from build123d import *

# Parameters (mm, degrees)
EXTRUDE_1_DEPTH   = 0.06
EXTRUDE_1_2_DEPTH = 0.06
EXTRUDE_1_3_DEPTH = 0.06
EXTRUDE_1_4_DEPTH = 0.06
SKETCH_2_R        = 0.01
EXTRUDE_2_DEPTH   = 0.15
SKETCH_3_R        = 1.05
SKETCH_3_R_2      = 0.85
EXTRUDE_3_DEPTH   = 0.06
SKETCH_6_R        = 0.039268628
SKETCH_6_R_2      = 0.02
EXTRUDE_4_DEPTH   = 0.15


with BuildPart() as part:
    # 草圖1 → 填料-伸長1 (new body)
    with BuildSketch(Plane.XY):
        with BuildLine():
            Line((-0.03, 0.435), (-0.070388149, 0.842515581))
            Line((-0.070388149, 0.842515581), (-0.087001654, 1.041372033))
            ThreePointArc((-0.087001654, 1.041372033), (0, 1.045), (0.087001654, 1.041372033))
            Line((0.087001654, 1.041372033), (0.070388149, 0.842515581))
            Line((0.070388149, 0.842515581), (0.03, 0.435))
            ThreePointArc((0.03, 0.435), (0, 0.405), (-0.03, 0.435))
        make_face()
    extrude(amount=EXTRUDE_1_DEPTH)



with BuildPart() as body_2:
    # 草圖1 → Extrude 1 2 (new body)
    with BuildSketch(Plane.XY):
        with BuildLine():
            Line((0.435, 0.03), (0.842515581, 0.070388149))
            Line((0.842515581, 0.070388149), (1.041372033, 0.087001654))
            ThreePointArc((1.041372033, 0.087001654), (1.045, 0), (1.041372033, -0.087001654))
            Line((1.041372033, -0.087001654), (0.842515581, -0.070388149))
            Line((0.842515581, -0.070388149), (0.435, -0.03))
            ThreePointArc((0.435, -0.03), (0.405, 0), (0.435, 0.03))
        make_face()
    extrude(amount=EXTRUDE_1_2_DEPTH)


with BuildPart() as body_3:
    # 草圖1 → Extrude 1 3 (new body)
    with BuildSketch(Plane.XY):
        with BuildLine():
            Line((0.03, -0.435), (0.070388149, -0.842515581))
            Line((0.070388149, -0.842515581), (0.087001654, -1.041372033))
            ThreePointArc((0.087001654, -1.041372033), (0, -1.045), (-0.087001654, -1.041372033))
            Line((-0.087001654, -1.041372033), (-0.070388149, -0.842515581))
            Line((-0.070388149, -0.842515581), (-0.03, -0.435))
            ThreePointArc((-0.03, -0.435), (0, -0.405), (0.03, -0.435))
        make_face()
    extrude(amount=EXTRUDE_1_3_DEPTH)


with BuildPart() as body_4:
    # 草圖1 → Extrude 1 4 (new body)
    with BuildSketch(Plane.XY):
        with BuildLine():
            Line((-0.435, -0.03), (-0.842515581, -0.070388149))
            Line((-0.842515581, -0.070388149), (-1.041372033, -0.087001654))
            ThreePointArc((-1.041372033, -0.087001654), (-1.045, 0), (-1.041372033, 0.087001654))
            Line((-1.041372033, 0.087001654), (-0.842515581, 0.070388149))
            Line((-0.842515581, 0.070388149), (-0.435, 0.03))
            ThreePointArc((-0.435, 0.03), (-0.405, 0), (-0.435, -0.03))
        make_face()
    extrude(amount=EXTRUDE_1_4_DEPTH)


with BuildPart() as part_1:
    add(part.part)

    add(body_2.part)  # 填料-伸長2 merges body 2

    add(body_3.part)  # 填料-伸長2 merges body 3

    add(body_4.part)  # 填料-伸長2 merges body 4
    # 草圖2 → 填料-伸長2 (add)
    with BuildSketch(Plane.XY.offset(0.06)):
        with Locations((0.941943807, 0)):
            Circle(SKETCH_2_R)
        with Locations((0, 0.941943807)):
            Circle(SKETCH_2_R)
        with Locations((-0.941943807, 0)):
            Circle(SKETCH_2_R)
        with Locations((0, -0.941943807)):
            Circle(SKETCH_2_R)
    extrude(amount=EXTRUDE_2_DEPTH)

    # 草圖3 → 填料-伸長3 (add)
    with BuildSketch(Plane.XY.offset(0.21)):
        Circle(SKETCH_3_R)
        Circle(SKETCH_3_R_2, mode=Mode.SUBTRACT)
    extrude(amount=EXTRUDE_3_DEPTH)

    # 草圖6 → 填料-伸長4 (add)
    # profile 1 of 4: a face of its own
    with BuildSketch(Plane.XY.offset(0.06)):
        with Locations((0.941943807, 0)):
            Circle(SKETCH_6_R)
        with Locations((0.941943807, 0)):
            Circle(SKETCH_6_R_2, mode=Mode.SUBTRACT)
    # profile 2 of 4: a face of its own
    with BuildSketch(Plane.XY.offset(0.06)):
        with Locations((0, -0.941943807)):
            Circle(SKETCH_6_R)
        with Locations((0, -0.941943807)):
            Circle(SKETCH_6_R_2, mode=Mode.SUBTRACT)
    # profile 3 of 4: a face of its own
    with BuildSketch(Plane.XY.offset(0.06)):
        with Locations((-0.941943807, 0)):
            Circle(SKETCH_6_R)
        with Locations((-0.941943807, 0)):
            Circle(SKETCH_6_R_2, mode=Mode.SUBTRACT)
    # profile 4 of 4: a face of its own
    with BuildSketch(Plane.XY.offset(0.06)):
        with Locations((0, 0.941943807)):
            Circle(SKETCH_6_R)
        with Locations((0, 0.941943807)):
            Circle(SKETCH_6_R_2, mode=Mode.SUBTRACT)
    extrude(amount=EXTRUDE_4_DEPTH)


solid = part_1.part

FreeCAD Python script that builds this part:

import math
import FreeCAD as App
import Part
import Sketcher

V = App.Vector
Q = App.Units.Quantity

doc = App.newDocument("Part")
body = doc.addObject("PartDesign::Body", "Body")

sketch1 = body.newObject("Sketcher::SketchObject", "Sketch")
sketch1.AttachmentSupport = (doc.getObject("XY_Plane"), [""])
sketch1.MapMode = "FlatFace"
sketch1.addGeometry(Part.LineSegment(V(-0.070388, 0.842516, 0), V(-0.03, 0.435, 0)), False)
sketch1.addGeometry(Part.ArcOfCircle(Part.Circle(V(0, 0.435, 0), V(0, 0, 1), 0.03), math.radians(180), math.radians(360)), False)
sketch1.addGeometry(Part.LineSegment(V(0.03, 0.435, 0), V(0.070388, 0.842516, 0)), False)
sketch1.addGeometry(Part.LineSegment(V(0.070388, 0.842516, 0), V(0.087002, 1.041372, 0)), False)
sketch1.addGeometry(Part.ArcOfCircle(Part.Circle(V(0, 0, 0), V(0, 0, 1), 1.045), math.radians(85.224301), math.radians(94.775699)), False)
sketch1.addGeometry(Part.LineSegment(V(-0.087002, 1.041372, 0), V(-0.070388, 0.842516, 0)), False)
sketch1.addConstraint(Sketcher.Constraint("Coincident", 0, 2, 1, 1))
sketch1.addConstraint(Sketcher.Constraint("Coincident", 1, 2, 2, 1))
sketch1.addConstraint(Sketcher.Constraint("Coincident", 2, 2, 3, 1))
sketch1.addConstraint(Sketcher.Constraint("Coincident", 3, 2, 4, 1))
sketch1.addConstraint(Sketcher.Constraint("Coincident", 4, 2, 5, 1))
sketch1.addConstraint(Sketcher.Constraint("Coincident", 5, 2, 0, 1))
sketch1.addConstraint(Sketcher.Constraint("Coincident", 4, 3, -1, 1))
sketch1.addConstraint(Sketcher.Constraint("Symmetric", 0, 2, 1, 2, -2))
sketch1.addConstraint(Sketcher.Constraint("Symmetric", 2, 2, 5, 2, -2))
sketch1.addConstraint(Sketcher.Constraint("Horizontal", 1, 3, 0, 2))
sketch1.addConstraint(Sketcher.Constraint("Horizontal", 3, 2, 4, 2))
sketch1.addConstraint(Sketcher.Constraint("Radius", 1, Q("0.03 mm")))
sketch1.addConstraint(Sketcher.Constraint("Radius", 4, Q("1.045 mm")))
sketch1.addConstraint(Sketcher.Constraint("Angle", 0, Q("-84.34 deg")))
sketch1.addConstraint(Sketcher.Constraint("DistanceY", -1, 1, 1, 3, Q("0.435 mm")))
sketch1.addConstraint(Sketcher.Constraint("DistanceX", -1, 1, 3, 2, Q("0.087002 mm")))
sketch1.addConstraint(Sketcher.Constraint("Distance", 3, Q("0.199549 mm")))
pad1 = body.newObject("PartDesign::Pad", "Pad")
pad1.Profile = sketch1
pad1.Length = 0.06
body2 = doc.addObject("PartDesign::Body", "Body001")

sketch2 = body2.newObject("Sketcher::SketchObject", "Sketch001")
sketch2.AttachmentSupport = (doc.getObject("XY_Plane001"), [""])
sketch2.MapMode = "FlatFace"
sketch2.addGeometry(Part.LineSegment(V(0.842516, 0.070388, 0), V(0.435, 0.03, 0)), False)
sketch2.addGeometry(Part.ArcOfCircle(Part.Circle(V(0.435, 0, 0), V(0, 0, 1), 0.03), math.radians(90), math.radians(270)), False)
sketch2.addGeometry(Part.LineSegment(V(0.435, -0.03, 0), V(0.842516, -0.070388, 0)), False)
sketch2.addGeometry(Part.LineSegment(V(0.842516, -0.070388, 0), V(1.041372, -0.087002, 0)), False)
sketch2.addGeometry(Part.ArcOfCircle(Part.Circle(V(0, 0, 0), V(0, 0, 1), 1.045), math.radians(-4.775699), math.radians(4.775699)), False)
sketch2.addGeometry(Part.LineSegment(V(1.041372, 0.087002, 0), V(0.842516, 0.070388, 0)), False)
sketch2.addConstraint(Sketcher.Constraint("Coincident", 0, 2, 1, 1))
sketch2.addConstraint(Sketcher.Constraint("Coincident", 1, 2, 2, 1))
sketch2.addConstraint(Sketcher.Constraint("Coincident", 2, 2, 3, 1))
sketch2.addConstraint(Sketcher.Constraint("Coincident", 3, 2, 4, 1))
sketch2.addConstraint(Sketcher.Constraint("Coincident", 4, 2, 5, 1))
sketch2.addConstraint(Sketcher.Constraint("Coincident", 5, 2, 0, 1))
sketch2.addConstraint(Sketcher.Constraint("Coincident", 4, 3, -1, 1))
sketch2.addConstraint(Sketcher.Constraint("Symmetric", 0, 2, 1, 2, -1))
sketch2.addConstraint(Sketcher.Constraint("Symmetric", 2, 2, 5, 2, -1))
sketch2.addConstraint(Sketcher.Constraint("Vertical", 1, 3, 0, 2))
sketch2.addConstraint(Sketcher.Constraint("Vertical", 3, 2, 4, 2))
sketch2.addConstraint(Sketcher.Constraint("Radius", 1, Q("0.03 mm")))
sketch2.addConstraint(Sketcher.Constraint("Radius", 4, Q("1.045 mm")))
sketch2.addConstraint(Sketcher.Constraint("Angle", 0, Q("-174.34 deg")))
sketch2.addConstraint(Sketcher.Constraint("DistanceX", -1, 1, 1, 3, Q("0.435 mm")))
sketch2.addConstraint(Sketcher.Constraint("DistanceY", 3, 2, -1, 1, Q("0.087002 mm")))
sketch2.addConstraint(Sketcher.Constraint("Distance", 3, Q("0.199549 mm")))
pad2 = body2.newObject("PartDesign::Pad", "Pad001")
pad2.Profile = sketch2
pad2.Length = 0.06
body3 = doc.addObject("PartDesign::Body", "Body002")

sketch3 = body3.newObject("Sketcher::SketchObject", "Sketch002")
sketch3.AttachmentSupport = (doc.getObject("XY_Plane002"), [""])
sketch3.MapMode = "FlatFace"
sketch3.addGeometry(Part.LineSegment(V(0.070388, -0.842516, 0), V(0.03, -0.435, 0)), False)
sketch3.addGeometry(Part.ArcOfCircle(Part.Circle(V(0, -0.435, 0), V(0, 0, 1), 0.03), math.radians(0), math.radians(180)), False)
sketch3.addGeometry(Part.LineSegment(V(-0.03, -0.435, 0), V(-0.070388, -0.842516, 0)), False)
sketch3.addGeometry(Part.LineSegment(V(-0.070388, -0.842516, 0), V(-0.087002, -1.041372, 0)), False)
sketch3.addGeometry(Part.ArcOfCircle(Part.Circle(V(0, 0, 0), V(0, 0, 1), 1.045), math.radians(-94.775699), math.radians(-85.224301)), False)
sketch3.addGeometry(Part.LineSegment(V(0.087002, -1.041372, 0), V(0.070388, -0.842516, 0)), False)
sketch3.addConstraint(Sketcher.Constraint("Coincident", 0, 2, 1, 1))
sketch3.addConstraint(Sketcher.Constraint("Coincident", 1, 2, 2, 1))
sketch3.addConstraint(Sketcher.Constraint("Coincident", 2, 2, 3, 1))
sketch3.addConstraint(Sketcher.Constraint("Coincident", 3, 2, 4, 1))
sketch3.addConstraint(Sketcher.Constraint("Coincident", 4, 2, 5, 1))
sketch3.addConstraint(Sketcher.Constraint("Coincident", 5, 2, 0, 1))
sketch3.addConstraint(Sketcher.Constraint("Coincident", 4, 3, -1, 1))
sketch3.addConstraint(Sketcher.Constraint("Symmetric", 0, 2, 1, 2, -2))
sketch3.addConstraint(Sketcher.Constraint("Symmetric", 2, 2, 5, 2, -2))
sketch3.addConstraint(Sketcher.Constraint("Horizontal", 1, 3, 0, 2))
sketch3.addConstraint(Sketcher.Constraint("Horizontal", 3, 2, 4, 2))
sketch3.addConstraint(Sketcher.Constraint("Radius", 1, Q("0.03 mm")))
sketch3.addConstraint(Sketcher.Constraint("Radius", 4, Q("1.045 mm")))
sketch3.addConstraint(Sketcher.Constraint("Angle", 0, Q("95.66 deg")))
sketch3.addConstraint(Sketcher.Constraint("DistanceY", 1, 3, -1, 1, Q("0.435 mm")))
sketch3.addConstraint(Sketcher.Constraint("DistanceX", 3, 2, -1, 1, Q("0.087002 mm")))
sketch3.addConstraint(Sketcher.Constraint("Distance", 3, Q("0.199549 mm")))
pad3 = body3.newObject("PartDesign::Pad", "Pad002")
pad3.Profile = sketch3
pad3.Length = 0.06
body4 = doc.addObject("PartDesign::Body", "Body003")

sketch4 = body4.newObject("Sketcher::SketchObject", "Sketch003")
sketch4.AttachmentSupport = (doc.getObject("XY_Plane003"), [""])
sketch4.MapMode = "FlatFace"
sketch4.addGeometry(Part.LineSegment(V(-0.842516, -0.070388, 0), V(-0.435, -0.03, 0)), False)
sketch4.addGeometry(Part.ArcOfCircle(Part.Circle(V(-0.435, 0, 0), V(0, 0, 1), 0.03), math.radians(-90), math.radians(90)), False)
sketch4.addGeometry(Part.LineSegment(V(-0.435, 0.03, 0), V(-0.842516, 0.070388, 0)), False)
sketch4.addGeometry(Part.LineSegment(V(-0.842516, 0.070388, 0), V(-1.041372, 0.087002, 0)), False)
sketch4.addGeometry(Part.ArcOfCircle(Part.Circle(V(0, 0, 0), V(0, 0, 1), 1.045), math.radians(175.224301), math.radians(184.775699)), False)
sketch4.addGeometry(Part.LineSegment(V(-1.041372, -0.087002, 0), V(-0.842516, -0.070388, 0)), False)
sketch4.addConstraint(Sketcher.Constraint("Coincident", 0, 2, 1, 1))
sketch4.addConstraint(Sketcher.Constraint("Coincident", 1, 2, 2, 1))
sketch4.addConstraint(Sketcher.Constraint("Coincident", 2, 2, 3, 1))
sketch4.addConstraint(Sketcher.Constraint("Coincident", 3, 2, 4, 1))
sketch4.addConstraint(Sketcher.Constraint("Coincident", 4, 2, 5, 1))
sketch4.addConstraint(Sketcher.Constraint("Coincident", 5, 2, 0, 1))
sketch4.addConstraint(Sketcher.Constraint("Coincident", 4, 3, -1, 1))
sketch4.addConstraint(Sketcher.Constraint("Symmetric", 0, 2, 1, 2, -1))
sketch4.addConstraint(Sketcher.Constraint("Symmetric", 2, 2, 5, 2, -1))
sketch4.addConstraint(Sketcher.Constraint("Vertical", 1, 3, 0, 2))
sketch4.addConstraint(Sketcher.Constraint("Vertical", 3, 2, 4, 2))
sketch4.addConstraint(Sketcher.Constraint("Radius", 1, Q("0.03 mm")))
sketch4.addConstraint(Sketcher.Constraint("Radius", 4, Q("1.045 mm")))
sketch4.addConstraint(Sketcher.Constraint("Angle", 0, Q("5.66 deg")))
sketch4.addConstraint(Sketcher.Constraint("DistanceX", 1, 3, -1, 1, Q("0.435 mm")))
sketch4.addConstraint(Sketcher.Constraint("DistanceY", -1, 1, 3, 2, Q("0.087002 mm")))
sketch4.addConstraint(Sketcher.Constraint("Distance", 3, Q("0.199549 mm")))
pad4 = body4.newObject("PartDesign::Pad", "Pad003")
pad4.Profile = sketch4
pad4.Length = 0.06
body.AllowCompound = True
doc.recompute()

boolean = body.newObject("PartDesign::Boolean", "Boolean")
boolean.Type = "Fuse"
boolean.addObjects([body2])
doc.recompute()

boolean2 = body.newObject("PartDesign::Boolean", "Boolean001")
boolean2.Type = "Fuse"
boolean2.addObjects([body3])
doc.recompute()

boolean3 = body.newObject("PartDesign::Boolean", "Boolean002")
boolean3.Type = "Fuse"
boolean3.addObjects([body4])

sketch5 = body.newObject("Sketcher::SketchObject", "Sketch004")
sketch5.AttachmentSupport = (doc.getObject("XY_Plane"), [""])
sketch5.MapMode = "FlatFace"
sketch5.AttachmentOffset = App.Placement(V(0, 0, 0.06), App.Rotation())
sketch5.addGeometry(Part.Circle(V(0.941944, 0, 0), V(0, 0, 1), 0.01), False)
sketch5.addGeometry(Part.Circle(V(0, 0.941944, 0), V(0, 0, 1), 0.01), False)
sketch5.addGeometry(Part.Circle(V(-0.941944, 0, 0), V(0, 0, 1), 0.01), False)
sketch5.addGeometry(Part.Circle(V(0, -0.941944, 0), V(0, 0, 1), 0.01), False)
sketch5.addConstraint(Sketcher.Constraint("Equal", 0, 1))
sketch5.addConstraint(Sketcher.Constraint("Equal", 1, 2))
sketch5.addConstraint(Sketcher.Constraint("Equal", 2, 3))
sketch5.addConstraint(Sketcher.Constraint("Symmetric", 0, 3, 2, 3, -1, 1))
sketch5.addConstraint(Sketcher.Constraint("Symmetric", 1, 3, 3, 3, -1, 1))
sketch5.addConstraint(Sketcher.Constraint("PointOnObject", 0, 3, -1))
sketch5.addConstraint(Sketcher.Constraint("PointOnObject", 1, 3, -2))
sketch5.addConstraint(Sketcher.Constraint("Diameter", 0, Q("0.02 mm")))
sketch5.addConstraint(Sketcher.Constraint("DistanceX", -1, 1, 0, 3, Q("0.941944 mm")))
sketch5.addConstraint(Sketcher.Constraint("DistanceY", -1, 1, 1, 3, Q("0.941944 mm")))
pad5 = body.newObject("PartDesign::Pad", "Pad004")
pad5.Profile = sketch5
pad5.Length = 0.15

sketch6 = body.newObject("Sketcher::SketchObject", "Sketch005")
sketch6.AttachmentSupport = (doc.getObject("XY_Plane"), [""])
sketch6.MapMode = "FlatFace"
sketch6.AttachmentOffset = App.Placement(V(0, 0, 0.21), App.Rotation())
sketch6.addGeometry(Part.Circle(V(0, 0, 0), V(0, 0, 1), 1.05), False)
sketch6.addGeometry(Part.Circle(V(0, 0, 0), V(0, 0, 1), 0.85), False)
sketch6.addConstraint(Sketcher.Constraint("Coincident", 0, 3, -1, 1))
sketch6.addConstraint(Sketcher.Constraint("Coincident", 1, 3, -1, 1))
sketch6.addConstraint(Sketcher.Constraint("Diameter", 0, Q("2.1 mm")))
sketch6.addConstraint(Sketcher.Constraint("Diameter", 1, Q("1.7 mm")))
pad6 = body.newObject("PartDesign::Pad", "Pad005")
pad6.Profile = sketch6
pad6.Length = 0.06

sketch7 = body.newObject("Sketcher::SketchObject", "Sketch006")
sketch7.AttachmentSupport = (doc.getObject("XY_Plane"), [""])
sketch7.MapMode = "FlatFace"
sketch7.AttachmentOffset = App.Placement(V(0, 0, 0.06), App.Rotation())
sketch7.addGeometry(Part.Circle(V(0.941944, 0, 0), V(0, 0, 1), 0.039269), False)
sketch7.addGeometry(Part.Circle(V(0.941944, 0, 0), V(0, 0, 1), 0.02), False)
sketch7.addGeometry(Part.Circle(V(0, -0.941944, 0), V(0, 0, 1), 0.039269), False)
sketch7.addGeometry(Part.Circle(V(0, -0.941944, 0), V(0, 0, 1), 0.02), False)
sketch7.addGeometry(Part.Circle(V(-0.941944, 0, 0), V(0, 0, 1), 0.039269), False)
sketch7.addGeometry(Part.Circle(V(-0.941944, 0, 0), V(0, 0, 1), 0.02), False)
sketch7.addGeometry(Part.Circle(V(0, 0.941944, 0), V(0, 0, 1), 0.039269), False)
sketch7.addGeometry(Part.Circle(V(0, 0.941944, 0), V(0, 0, 1), 0.02), False)
sketch7.addConstraint(Sketcher.Constraint("Coincident", 1, 3, 0, 3))
sketch7.addConstraint(Sketcher.Constraint("Coincident", 3, 3, 2, 3))
sketch7.addConstraint(Sketcher.Constraint("Coincident", 5, 3, 4, 3))
sketch7.addConstraint(Sketcher.Constraint("Coincident", 7, 3, 6, 3))
sketch7.addConstraint(Sketcher.Constraint("Equal", 0, 2))
sketch7.addConstraint(Sketcher.Constraint("Equal", 1, 3))
sketch7.addConstraint(Sketcher.Constraint("Equal", 2, 4))
sketch7.addConstraint(Sketcher.Constraint("Equal", 3, 5))
sketch7.addConstraint(Sketcher.Constraint("Equal", 4, 6))
sketch7.addConstraint(Sketcher.Constraint("Equal", 5, 7))
sketch7.addConstraint(Sketcher.Constraint("Symmetric", 0, 3, 4, 3, -1, 1))
sketch7.addConstraint(Sketcher.Constraint("Symmetric", 2, 3, 6, 3, -1, 1))
sketch7.addConstraint(Sketcher.Constraint("PointOnObject", 0, 3, -1))
sketch7.addConstraint(Sketcher.Constraint("PointOnObject", 2, 3, -2))
sketch7.addConstraint(Sketcher.Constraint("Diameter", 1, Q("0.04 mm")))
sketch7.addConstraint(Sketcher.Constraint("Diameter", 0, Q("0.078537 mm")))
sketch7.addConstraint(Sketcher.Constraint("DistanceX", -1, 1, 0, 3, Q("0.941944 mm")))
sketch7.addConstraint(Sketcher.Constraint("DistanceY", 2, 3, -1, 1, Q("0.941944 mm")))
pad7 = body.newObject("PartDesign::Pad", "Pad006")
pad7.Profile = sketch7
pad7.Length = 0.15

doc.recompute()
